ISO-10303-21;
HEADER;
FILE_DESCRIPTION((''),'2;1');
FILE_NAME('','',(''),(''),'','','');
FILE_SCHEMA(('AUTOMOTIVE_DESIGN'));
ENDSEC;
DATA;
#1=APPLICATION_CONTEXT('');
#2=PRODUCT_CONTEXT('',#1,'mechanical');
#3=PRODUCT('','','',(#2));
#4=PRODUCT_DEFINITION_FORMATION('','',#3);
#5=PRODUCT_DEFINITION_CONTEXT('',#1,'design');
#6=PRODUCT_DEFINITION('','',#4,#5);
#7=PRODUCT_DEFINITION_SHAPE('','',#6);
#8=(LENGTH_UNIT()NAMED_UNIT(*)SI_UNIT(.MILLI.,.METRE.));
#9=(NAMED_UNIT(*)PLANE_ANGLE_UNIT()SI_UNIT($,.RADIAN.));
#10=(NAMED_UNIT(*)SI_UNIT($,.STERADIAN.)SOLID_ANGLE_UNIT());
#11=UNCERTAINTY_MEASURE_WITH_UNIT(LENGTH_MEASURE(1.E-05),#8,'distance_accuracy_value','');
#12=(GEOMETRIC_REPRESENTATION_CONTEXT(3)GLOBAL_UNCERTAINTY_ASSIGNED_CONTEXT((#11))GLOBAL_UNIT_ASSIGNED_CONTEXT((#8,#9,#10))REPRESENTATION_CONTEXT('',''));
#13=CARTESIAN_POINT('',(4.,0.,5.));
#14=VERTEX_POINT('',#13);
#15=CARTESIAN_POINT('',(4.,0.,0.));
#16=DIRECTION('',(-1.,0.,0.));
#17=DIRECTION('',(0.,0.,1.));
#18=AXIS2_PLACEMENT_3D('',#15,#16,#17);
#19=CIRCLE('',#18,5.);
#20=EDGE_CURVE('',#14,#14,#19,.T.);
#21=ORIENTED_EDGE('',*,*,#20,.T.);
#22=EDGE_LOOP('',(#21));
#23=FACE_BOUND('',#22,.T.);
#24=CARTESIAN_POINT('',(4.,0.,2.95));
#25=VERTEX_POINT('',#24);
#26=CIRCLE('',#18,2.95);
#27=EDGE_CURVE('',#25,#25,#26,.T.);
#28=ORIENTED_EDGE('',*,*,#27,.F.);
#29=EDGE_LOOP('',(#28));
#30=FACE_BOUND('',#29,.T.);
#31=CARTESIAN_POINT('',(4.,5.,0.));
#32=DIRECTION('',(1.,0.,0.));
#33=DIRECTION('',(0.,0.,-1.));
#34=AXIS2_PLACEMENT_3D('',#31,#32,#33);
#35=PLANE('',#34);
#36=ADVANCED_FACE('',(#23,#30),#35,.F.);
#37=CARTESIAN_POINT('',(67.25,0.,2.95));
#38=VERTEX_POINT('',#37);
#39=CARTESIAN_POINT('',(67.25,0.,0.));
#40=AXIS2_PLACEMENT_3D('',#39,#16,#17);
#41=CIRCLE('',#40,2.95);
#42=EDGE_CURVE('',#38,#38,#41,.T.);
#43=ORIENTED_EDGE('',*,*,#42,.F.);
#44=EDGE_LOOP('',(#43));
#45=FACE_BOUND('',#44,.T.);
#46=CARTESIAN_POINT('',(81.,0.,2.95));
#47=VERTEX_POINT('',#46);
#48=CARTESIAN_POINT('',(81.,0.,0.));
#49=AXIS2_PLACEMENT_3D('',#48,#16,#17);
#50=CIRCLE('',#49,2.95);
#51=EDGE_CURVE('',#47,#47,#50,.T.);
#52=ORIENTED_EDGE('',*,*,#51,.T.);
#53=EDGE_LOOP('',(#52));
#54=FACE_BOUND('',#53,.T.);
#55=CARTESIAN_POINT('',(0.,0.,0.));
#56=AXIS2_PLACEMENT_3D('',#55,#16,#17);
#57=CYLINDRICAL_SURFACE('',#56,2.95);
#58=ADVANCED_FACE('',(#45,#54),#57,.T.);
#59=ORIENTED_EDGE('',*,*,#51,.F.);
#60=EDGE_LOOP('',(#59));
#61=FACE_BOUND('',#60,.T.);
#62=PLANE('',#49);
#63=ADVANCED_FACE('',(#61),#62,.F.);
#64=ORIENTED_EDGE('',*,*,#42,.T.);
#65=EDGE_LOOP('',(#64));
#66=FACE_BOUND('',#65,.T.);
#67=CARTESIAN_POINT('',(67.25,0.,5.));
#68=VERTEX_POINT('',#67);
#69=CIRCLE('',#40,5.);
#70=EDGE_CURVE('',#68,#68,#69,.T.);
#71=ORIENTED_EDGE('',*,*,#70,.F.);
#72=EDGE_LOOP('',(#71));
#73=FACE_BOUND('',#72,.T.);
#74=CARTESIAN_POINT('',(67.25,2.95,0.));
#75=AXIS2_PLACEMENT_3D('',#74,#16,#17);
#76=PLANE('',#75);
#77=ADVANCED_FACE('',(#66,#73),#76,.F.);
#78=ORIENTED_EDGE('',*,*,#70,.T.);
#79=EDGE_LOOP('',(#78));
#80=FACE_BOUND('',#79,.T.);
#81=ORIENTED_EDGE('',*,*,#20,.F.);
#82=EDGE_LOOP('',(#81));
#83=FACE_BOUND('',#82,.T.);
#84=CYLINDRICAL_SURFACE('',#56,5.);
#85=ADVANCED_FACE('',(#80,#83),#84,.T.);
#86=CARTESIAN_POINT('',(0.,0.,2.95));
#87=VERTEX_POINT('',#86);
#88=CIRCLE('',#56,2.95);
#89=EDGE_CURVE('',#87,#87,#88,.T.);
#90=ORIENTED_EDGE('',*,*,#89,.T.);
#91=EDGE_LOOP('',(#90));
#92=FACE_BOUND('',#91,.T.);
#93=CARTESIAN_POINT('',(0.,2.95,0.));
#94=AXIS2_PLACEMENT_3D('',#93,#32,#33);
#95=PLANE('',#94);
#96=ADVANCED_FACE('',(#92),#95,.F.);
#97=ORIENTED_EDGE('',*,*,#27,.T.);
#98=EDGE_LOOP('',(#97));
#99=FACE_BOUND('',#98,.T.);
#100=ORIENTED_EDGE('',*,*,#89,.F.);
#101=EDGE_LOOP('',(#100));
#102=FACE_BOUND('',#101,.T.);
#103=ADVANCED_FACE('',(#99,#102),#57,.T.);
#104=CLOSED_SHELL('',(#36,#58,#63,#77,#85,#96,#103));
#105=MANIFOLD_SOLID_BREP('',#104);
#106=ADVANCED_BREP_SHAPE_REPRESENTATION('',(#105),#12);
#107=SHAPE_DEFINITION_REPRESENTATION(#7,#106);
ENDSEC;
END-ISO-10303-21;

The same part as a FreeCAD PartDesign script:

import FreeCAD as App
import Part
import Sketcher

V = App.Vector

doc = App.newDocument("Part")
body = doc.addObject("PartDesign::Body", "Body")

sketch1 = body.newObject("Sketcher::SketchObject", "Sketch")
sketch1.AttachmentSupport = (doc.getObject("XY_Plane"), [""])
sketch1.MapMode = "FlatFace"
sketch1.addGeometry(Part.LineSegment(V(0, 0, 0), V(81, 0, 0)), False)
sketch1.addGeometry(Part.LineSegment(V(81, 0, 0), V(81, 3, 0)), False)
sketch1.addGeometry(Part.LineSegment(V(81, 3, 0), V(67.2, 3, 0)), False)
sketch1.addGeometry(Part.LineSegment(V(67.2, 3, 0), V(67.2, 5, 0)), False)
sketch1.addGeometry(Part.LineSegment(V(67.2, 5, 0), V(4, 5, 0)), False)
sketch1.addGeometry(Part.LineSegment(V(4, 5, 0), V(4, 3, 0)), False)
sketch1.addGeometry(Part.LineSegment(V(4, 3, 0), V(0, 3, 0)), False)
sketch1.addGeometry(Part.LineSegment(V(0, 3, 0), V(0, 0, 0)), False)
sketch1.addConstraint(Sketcher.Constraint("Coincident", 0, 2, 1, 1))
sketch1.addConstraint(Sketcher.Constraint("Coincident", 1, 2, 2, 1))
sketch1.addConstraint(Sketcher.Constraint("Coincident", 2, 2, 3, 1))
sketch1.addConstraint(Sketcher.Constraint("Coincident", 3, 2, 4, 1))
sketch1.addConstraint(Sketcher.Constraint("Coincident", 4, 2, 5, 1))
sketch1.addConstraint(Sketcher.Constraint("Coincident", 5, 2, 6, 1))
sketch1.addConstraint(Sketcher.Constraint("Coincident", 6, 2, 7, 1))
sketch1.addConstraint(Sketcher.Constraint("Coincident", 7, 2, 0, 1))
sketch1.addConstraint(Sketcher.Constraint("Horizontal", 0))
sketch1.addConstraint(Sketcher.Constraint("Vertical", 1))
sketch1.addConstraint(Sketcher.Constraint("Horizontal", 2))
sketch1.addConstraint(Sketcher.Constraint("Vertical", 3))
sketch1.addConstraint(Sketcher.Constraint("Horizontal", 4))
sketch1.addConstraint(Sketcher.Constraint("Vertical", 5))
sketch1.addConstraint(Sketcher.Constraint("Horizontal", 6))
sketch1.addConstraint(Sketcher.Constraint("Vertical", 7))
sketch1.addConstraint(Sketcher.Constraint("Coincident", 7, 2, -1, 1))
sketch1.addConstraint(Sketcher.Constraint("Horizontal", 2, 2, 5, 2))
sketch1.addConstraint(Sketcher.Constraint("DistanceX", 0, 1, 0, 2, 81.0))
sketch1.addConstraint(Sketcher.Constraint("DistanceX", 6, 2, 6, 1, 4.0))
sketch1.addConstraint(Sketcher.Constraint("DistanceY", -1, 1, 3, 2, 5.0))
sketch1.addConstraint(Sketcher.Constraint("DistanceX", 2, 2, 2, 1, 13.75))
sketch1.addConstraint(Sketcher.Constraint("DistanceY", 1, 1, 1, 2, 2.95))
revolution = body.newObject("PartDesign::Revolution", "Revolution")
revolution.Profile = sketch1
revolution.ReferenceAxis = (sketch1, ["H_Axis"])
revolution.Angle = 360

doc.recompute()
